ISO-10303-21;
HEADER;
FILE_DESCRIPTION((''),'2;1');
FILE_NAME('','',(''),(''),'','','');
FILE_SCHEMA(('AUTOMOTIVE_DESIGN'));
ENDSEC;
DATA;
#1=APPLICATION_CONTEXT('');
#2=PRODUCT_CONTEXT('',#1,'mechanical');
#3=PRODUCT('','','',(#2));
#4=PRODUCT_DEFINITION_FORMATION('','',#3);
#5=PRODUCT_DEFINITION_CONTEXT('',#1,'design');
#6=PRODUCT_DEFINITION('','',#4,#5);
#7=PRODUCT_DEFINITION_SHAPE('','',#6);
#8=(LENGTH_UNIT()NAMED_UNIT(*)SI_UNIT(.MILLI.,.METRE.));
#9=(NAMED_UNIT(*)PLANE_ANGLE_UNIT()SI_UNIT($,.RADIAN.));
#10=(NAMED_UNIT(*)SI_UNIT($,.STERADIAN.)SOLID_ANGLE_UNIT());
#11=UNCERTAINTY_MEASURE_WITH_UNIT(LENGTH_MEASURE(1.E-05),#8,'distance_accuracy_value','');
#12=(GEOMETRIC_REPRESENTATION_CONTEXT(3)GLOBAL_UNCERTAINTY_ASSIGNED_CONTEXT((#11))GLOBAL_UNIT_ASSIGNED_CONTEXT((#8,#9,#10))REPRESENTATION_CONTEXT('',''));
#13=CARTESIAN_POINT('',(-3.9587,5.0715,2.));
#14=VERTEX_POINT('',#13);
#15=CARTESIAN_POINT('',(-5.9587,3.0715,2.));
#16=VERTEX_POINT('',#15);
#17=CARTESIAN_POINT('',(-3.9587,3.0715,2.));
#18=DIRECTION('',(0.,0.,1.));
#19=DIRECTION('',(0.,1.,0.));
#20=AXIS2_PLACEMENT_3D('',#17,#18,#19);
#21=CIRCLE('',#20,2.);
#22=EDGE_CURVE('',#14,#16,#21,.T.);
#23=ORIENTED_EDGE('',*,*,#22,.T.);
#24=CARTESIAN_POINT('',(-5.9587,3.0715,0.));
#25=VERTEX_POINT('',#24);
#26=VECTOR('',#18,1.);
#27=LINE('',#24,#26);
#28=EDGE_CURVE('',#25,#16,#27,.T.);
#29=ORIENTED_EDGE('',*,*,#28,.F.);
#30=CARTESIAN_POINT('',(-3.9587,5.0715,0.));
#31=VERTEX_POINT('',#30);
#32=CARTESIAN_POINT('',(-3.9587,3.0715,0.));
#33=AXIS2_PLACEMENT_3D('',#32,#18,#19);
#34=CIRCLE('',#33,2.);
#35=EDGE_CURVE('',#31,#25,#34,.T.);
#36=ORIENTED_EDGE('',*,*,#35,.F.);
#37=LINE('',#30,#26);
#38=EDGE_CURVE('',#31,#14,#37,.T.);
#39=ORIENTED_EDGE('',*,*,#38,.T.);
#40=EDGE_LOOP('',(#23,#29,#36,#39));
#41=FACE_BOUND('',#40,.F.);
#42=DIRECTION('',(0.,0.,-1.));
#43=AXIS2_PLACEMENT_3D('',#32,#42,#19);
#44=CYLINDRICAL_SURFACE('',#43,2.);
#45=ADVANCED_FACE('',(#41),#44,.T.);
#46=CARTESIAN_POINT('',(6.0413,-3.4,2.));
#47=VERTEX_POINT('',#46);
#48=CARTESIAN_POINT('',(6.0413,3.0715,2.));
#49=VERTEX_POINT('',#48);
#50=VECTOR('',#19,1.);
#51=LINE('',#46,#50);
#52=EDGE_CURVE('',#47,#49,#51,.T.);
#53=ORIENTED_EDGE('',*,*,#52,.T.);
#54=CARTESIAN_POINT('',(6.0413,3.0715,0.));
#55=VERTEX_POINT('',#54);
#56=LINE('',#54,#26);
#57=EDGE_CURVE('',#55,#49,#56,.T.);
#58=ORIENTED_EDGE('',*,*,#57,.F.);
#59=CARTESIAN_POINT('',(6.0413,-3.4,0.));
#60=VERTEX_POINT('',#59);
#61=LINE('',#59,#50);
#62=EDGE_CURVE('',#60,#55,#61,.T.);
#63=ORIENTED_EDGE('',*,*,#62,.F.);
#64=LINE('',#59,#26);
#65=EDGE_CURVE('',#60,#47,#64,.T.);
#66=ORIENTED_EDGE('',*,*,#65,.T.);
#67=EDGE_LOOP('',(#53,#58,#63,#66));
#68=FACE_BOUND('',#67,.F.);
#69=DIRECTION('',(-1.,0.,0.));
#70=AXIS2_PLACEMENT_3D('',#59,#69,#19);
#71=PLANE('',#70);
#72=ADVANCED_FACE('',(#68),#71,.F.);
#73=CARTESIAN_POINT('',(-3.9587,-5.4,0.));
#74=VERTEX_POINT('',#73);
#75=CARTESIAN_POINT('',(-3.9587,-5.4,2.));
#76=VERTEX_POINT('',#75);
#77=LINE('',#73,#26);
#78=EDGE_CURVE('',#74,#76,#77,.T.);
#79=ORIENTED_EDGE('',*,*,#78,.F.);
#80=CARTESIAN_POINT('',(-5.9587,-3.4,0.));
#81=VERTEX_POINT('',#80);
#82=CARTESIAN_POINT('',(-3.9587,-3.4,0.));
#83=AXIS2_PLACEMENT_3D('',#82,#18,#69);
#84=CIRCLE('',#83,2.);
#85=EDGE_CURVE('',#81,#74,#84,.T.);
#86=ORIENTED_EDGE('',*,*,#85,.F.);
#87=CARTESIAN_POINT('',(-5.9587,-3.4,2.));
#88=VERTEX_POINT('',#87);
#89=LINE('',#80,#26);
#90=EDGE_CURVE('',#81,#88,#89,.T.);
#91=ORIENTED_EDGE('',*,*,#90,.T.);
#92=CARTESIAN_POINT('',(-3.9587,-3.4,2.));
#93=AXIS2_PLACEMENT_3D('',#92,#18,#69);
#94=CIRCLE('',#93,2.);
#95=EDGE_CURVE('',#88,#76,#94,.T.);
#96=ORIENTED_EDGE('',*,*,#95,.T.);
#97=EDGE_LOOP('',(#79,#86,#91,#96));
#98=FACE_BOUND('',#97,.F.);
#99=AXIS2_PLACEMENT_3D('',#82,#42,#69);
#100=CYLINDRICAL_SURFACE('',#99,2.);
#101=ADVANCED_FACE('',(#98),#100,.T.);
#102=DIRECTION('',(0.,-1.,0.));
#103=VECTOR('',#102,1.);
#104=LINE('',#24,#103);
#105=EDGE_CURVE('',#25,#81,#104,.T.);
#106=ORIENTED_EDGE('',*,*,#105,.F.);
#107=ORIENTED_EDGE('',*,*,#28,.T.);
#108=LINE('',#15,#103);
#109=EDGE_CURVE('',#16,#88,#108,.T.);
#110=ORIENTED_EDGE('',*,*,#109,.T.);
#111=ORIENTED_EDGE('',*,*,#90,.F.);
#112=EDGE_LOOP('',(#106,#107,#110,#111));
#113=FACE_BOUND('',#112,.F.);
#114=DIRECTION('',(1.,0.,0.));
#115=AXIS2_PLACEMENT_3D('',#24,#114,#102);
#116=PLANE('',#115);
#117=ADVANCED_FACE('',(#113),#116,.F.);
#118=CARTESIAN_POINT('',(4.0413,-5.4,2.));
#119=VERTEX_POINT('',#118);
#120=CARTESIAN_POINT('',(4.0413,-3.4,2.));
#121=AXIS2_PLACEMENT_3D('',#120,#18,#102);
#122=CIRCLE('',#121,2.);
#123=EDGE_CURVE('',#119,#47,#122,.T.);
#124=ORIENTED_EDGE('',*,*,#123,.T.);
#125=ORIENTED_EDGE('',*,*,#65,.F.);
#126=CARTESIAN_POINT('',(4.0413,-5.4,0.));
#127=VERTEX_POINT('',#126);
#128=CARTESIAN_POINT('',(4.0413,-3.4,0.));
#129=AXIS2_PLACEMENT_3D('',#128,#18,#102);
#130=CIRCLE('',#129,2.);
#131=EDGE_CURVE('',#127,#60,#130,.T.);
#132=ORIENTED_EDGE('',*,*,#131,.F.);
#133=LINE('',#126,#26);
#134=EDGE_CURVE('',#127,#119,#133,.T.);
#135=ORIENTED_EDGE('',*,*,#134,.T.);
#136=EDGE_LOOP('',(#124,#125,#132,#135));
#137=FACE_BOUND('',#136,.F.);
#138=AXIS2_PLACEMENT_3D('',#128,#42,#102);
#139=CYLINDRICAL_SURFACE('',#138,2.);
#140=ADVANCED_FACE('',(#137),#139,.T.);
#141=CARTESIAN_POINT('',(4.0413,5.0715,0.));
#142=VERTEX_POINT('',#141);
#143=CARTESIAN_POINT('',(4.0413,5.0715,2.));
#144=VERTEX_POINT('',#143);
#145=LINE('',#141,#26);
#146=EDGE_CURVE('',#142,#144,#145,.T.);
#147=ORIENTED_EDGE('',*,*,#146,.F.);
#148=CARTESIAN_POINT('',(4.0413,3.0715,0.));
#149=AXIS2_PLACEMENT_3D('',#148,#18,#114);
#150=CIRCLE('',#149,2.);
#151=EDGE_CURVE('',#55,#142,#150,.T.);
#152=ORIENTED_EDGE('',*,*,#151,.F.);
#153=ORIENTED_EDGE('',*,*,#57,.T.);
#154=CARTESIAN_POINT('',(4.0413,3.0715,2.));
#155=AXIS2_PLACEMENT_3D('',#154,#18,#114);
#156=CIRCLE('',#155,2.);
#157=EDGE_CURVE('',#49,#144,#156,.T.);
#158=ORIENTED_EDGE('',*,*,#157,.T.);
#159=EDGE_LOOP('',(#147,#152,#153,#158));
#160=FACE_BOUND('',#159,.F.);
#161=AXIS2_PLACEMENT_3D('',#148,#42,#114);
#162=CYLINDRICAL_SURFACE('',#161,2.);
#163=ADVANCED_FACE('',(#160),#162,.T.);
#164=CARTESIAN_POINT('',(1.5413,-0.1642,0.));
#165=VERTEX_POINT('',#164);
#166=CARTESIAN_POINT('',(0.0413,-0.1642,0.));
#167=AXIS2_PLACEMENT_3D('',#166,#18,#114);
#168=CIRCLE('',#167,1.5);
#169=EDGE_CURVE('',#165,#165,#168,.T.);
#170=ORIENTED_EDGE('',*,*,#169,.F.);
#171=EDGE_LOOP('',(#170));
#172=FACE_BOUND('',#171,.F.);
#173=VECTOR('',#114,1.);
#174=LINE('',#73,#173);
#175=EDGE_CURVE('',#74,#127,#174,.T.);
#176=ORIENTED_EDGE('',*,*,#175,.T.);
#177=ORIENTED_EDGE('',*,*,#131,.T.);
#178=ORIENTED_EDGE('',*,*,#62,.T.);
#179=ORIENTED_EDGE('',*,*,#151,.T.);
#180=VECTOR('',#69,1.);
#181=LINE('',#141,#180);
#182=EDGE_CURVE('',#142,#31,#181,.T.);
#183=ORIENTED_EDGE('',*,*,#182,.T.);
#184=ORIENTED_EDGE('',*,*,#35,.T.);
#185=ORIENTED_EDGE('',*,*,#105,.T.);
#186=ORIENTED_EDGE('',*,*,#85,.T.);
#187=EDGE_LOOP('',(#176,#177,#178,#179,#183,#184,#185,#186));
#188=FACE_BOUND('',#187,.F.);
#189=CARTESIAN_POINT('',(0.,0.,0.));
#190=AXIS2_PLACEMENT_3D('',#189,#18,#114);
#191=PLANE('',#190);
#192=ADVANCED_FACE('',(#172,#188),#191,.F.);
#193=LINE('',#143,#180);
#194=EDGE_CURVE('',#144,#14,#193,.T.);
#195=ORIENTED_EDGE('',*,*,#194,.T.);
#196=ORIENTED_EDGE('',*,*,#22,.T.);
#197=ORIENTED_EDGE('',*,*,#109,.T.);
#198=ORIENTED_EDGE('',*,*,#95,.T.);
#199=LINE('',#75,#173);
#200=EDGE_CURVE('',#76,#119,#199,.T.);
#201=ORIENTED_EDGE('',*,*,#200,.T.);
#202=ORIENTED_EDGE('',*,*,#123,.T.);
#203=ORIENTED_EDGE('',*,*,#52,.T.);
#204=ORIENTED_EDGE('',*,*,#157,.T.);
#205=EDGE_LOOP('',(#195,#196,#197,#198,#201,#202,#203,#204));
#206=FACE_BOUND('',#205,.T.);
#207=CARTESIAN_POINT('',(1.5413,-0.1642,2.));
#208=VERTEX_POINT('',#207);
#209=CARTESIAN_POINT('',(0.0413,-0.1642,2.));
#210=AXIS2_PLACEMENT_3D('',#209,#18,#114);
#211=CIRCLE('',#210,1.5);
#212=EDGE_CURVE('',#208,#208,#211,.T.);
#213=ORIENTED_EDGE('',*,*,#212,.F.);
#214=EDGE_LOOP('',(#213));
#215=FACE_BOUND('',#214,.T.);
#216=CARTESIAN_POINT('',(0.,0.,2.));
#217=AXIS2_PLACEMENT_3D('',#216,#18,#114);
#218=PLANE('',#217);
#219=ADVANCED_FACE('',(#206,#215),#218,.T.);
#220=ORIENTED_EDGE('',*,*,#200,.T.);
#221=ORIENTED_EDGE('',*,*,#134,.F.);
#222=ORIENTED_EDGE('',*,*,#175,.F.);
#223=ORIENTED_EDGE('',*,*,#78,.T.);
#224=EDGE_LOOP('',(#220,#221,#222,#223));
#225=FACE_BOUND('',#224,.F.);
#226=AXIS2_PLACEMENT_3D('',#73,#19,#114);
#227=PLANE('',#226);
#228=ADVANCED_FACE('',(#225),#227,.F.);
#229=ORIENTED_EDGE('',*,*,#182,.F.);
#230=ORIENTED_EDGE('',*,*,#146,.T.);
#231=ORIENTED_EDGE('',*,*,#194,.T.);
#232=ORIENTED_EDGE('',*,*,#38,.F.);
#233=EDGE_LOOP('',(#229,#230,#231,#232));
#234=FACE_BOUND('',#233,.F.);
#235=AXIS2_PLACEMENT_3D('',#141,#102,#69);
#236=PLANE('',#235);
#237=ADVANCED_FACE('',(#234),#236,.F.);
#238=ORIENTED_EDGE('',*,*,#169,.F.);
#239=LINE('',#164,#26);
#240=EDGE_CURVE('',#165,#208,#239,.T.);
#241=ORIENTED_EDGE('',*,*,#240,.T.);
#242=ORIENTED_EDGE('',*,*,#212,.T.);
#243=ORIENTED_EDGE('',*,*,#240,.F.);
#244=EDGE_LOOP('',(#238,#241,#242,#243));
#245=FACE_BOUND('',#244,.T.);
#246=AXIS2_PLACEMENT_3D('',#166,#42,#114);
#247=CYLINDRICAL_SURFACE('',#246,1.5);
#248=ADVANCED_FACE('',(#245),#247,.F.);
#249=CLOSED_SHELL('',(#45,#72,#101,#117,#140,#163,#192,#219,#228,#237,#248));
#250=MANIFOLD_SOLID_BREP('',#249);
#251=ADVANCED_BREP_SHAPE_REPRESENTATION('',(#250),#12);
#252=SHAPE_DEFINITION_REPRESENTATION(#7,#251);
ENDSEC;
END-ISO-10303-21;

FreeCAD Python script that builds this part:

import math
import FreeCAD as App
import Part
import Sketcher

doc = App.newDocument("Part")
body = doc.addObject("PartDesign::Body", "Body")

sketch1 = doc.addObject("Sketcher::SketchObject", "Sketch")
body.addObject(sketch1)
sketch1.AttachmentSupport = (doc.XY_Plane, [""])
sketch1.MapMode = "FlatFace"
sketch1.addGeometry([
    Part.ArcOfCircle(Part.Circle(App.Vector(-4, -3.4, 0), App.Vector(0, 0, 1), 2), math.radians(180), math.radians(270)),
    Part.LineSegment(App.Vector(-4, -5.4, 0), App.Vector(4, -5.4, 0)),
    Part.ArcOfCircle(Part.Circle(App.Vector(4, -3.4, 0), App.Vector(0, 0, 1), 2), math.radians(-90), math.radians(0)),
    Part.LineSegment(App.Vector(6, -3.4, 0), App.Vector(6, 3.1, 0)),
    Part.ArcOfCircle(Part.Circle(App.Vector(4, 3.1, 0), App.Vector(0, 0, 1), 2), math.radians(0), math.radians(90)),
    Part.LineSegment(App.Vector(4, 5.1, 0), App.Vector(-4, 5.1, 0)),
    Part.ArcOfCircle(Part.Circle(App.Vector(-4, 3.1, 0), App.Vector(0, 0, 1), 2), math.radians(90), math.radians(180)),
    Part.LineSegment(App.Vector(-6, 3.1, 0), App.Vector(-6, -3.4, 0)),
    Part.Circle(App.Vector(0, -0.2, 0), App.Vector(0, 0, 1), 1.5),
], False)
sketch1.addConstraint([
    Sketcher.Constraint("Tangent", 0, 2, 1, 1),
    Sketcher.Constraint("Tangent", 1, 2, 2, 1),
    Sketcher.Constraint("Tangent", 2, 2, 3, 1),
    Sketcher.Constraint("Tangent", 3, 2, 4, 1),
    Sketcher.Constraint("Tangent", 4, 2, 5, 1),
    Sketcher.Constraint("Tangent", 5, 2, 6, 1),
    Sketcher.Constraint("Tangent", 6, 2, 7, 1),
    Sketcher.Constraint("Tangent", 7, 2, 0, 1),
    Sketcher.Constraint("Horizontal", 1),
    Sketcher.Constraint("Vertical", 3),
    Sketcher.Constraint("Horizontal", 5),
    Sketcher.Constraint("Vertical", 7),
    Sketcher.Constraint("Equal", 0, 2),
    Sketcher.Constraint("Equal", 2, 4),
    Sketcher.Constraint("Equal", 4, 6),
    Sketcher.Constraint("Radius", 0, 2.0),
    Sketcher.Constraint("Diameter", 8, 3.0),
    Sketcher.Constraint("DistanceX", 8, 3, 2, 2, 6.0),
    Sketcher.Constraint("DistanceX", 6, 2, 8, 3, 6.0),
    Sketcher.Constraint("DistanceY", 0, 3, -1, 1, 3.4),
    Sketcher.Constraint("DistanceY", 0, 2, 8, 3, 5.2358),
    Sketcher.Constraint("DistanceY", 8, 3, 4, 2, 5.2357),
    Sketcher.Constraint("DistanceX", 0, 3, -1, 1, 3.9587),
])
pad1 = doc.addObject("PartDesign::Pad", "Pad")
body.addObject(pad1)
pad1.Profile = sketch1
pad1.Length = 2

doc.recompute()
